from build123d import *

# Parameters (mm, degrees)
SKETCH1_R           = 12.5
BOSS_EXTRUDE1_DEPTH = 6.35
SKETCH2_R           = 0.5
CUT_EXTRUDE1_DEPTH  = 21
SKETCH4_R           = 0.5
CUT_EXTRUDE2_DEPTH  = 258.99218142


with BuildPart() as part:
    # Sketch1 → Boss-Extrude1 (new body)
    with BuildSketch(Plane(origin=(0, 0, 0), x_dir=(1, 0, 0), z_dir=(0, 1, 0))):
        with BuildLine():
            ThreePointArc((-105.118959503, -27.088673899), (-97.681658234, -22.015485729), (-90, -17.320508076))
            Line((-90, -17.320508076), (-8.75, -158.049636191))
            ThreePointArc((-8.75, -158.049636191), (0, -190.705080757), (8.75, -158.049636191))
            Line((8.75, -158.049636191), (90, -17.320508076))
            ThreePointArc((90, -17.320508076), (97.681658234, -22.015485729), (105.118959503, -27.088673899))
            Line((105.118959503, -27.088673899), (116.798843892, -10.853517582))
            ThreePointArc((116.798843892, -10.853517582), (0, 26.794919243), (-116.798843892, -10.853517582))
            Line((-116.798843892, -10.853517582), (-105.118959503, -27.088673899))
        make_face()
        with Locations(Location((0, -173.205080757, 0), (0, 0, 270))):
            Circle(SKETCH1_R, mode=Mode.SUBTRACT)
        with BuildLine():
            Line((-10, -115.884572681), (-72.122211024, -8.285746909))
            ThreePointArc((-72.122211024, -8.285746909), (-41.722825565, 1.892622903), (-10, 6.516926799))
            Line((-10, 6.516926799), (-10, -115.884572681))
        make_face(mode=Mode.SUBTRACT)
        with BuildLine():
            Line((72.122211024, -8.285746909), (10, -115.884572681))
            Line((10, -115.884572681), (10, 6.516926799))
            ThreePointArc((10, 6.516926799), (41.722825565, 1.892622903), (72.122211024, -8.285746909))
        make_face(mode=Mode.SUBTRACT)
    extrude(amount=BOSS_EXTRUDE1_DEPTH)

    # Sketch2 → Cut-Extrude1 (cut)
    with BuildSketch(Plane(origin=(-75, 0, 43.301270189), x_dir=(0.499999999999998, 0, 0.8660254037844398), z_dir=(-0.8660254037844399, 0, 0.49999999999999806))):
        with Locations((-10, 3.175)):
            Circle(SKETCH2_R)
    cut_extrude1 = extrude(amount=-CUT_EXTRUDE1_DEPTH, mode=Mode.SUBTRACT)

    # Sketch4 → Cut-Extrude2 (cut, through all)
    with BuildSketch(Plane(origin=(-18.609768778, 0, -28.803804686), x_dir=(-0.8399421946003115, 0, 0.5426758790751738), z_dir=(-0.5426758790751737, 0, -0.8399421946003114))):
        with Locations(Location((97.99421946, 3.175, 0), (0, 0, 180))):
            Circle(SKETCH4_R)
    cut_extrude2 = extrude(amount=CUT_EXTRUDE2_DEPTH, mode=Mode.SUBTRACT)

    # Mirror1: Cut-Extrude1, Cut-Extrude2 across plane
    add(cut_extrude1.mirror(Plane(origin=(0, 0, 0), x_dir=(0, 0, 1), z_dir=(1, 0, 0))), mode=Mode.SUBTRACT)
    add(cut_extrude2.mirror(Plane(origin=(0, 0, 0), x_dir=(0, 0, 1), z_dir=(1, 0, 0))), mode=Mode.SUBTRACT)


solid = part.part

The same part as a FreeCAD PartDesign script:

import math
import FreeCAD as App
import Part
import Sketcher

V = App.Vector
Q = App.Units.Quantity

doc = App.newDocument("Part")
body = doc.addObject("PartDesign::Body", "Body")

sketch1 = body.newObject("Sketcher::SketchObject", "Sketch")
sketch1.AttachmentSupport = (doc.getObject("XZ_Plane"), [""])
sketch1.MapMode = "FlatFace"
sketch1.addGeometry([
    Part.ArcOfCircle(Part.Circle(V(0, 173, 0), V(0, 0, 1), 180), math.radians(-125.73), math.radians(-120)),
    Part.LineSegment(V(-90, 17, 0), V(-9, 158, 0)),
    Part.ArcOfCircle(Part.Circle(V(0, 173, 0), V(0, 0, 1), 18), math.radians(-60), math.radians(240)),
    Part.LineSegment(V(9, 158, 0), V(90, 17, 0)),
    Part.ArcOfCircle(Part.Circle(V(0, 173, 0), V(0, 0, 1), 180), math.radians(-60), math.radians(-54.27)),
    Part.LineSegment(V(105, 27, 0), V(117, 11, 0)),
    Part.ArcOfCircle(Part.Circle(V(0, 173, 0), V(0, 0, 1), 200), math.radians(-126), math.radians(-54)),
    Part.LineSegment(V(-117, 11, 0), V(-105, 27, 0)),
    Part.Circle(V(0, 173, 0), V(0, 0, 1), 12),
    Part.LineSegment(V(-10, -7, 0), V(-10, 116, 0)),
    Part.LineSegment(V(-10, 116, 0), V(-72, 8, 0)),
    Part.ArcOfCircle(Part.Circle(V(0, 173, 0), V(0, 0, 1), 180), math.radians(-114), math.radians(-93)),
    Part.ArcOfCircle(Part.Circle(V(0, 173, 0), V(0, 0, 1), 180), math.radians(-87), math.radians(-66)),
    Part.LineSegment(V(72, 8, 0), V(10, 116, 0)),
    Part.LineSegment(V(10, 116, 0), V(10, -7, 0)),
], False)
sketch1.addConstraint([
    Sketcher.Constraint("Coincident", 0, 2, 1, 1),
    Sketcher.Constraint("Coincident", 1, 2, 2, 2),
    Sketcher.Constraint("Coincident", 2, 1, 3, 1),
    Sketcher.Constraint("Coincident", 3, 2, 4, 1),
    Sketcher.Constraint("Coincident", 4, 2, 5, 1),
    Sketcher.Constraint("Coincident", 5, 2, 6, 2),
    Sketcher.Constraint("Coincident", 6, 1, 7, 1),
    Sketcher.Constraint("Coincident", 7, 2, 0, 1),
    Sketcher.Constraint("Coincident", 9, 2, 10, 1),
    Sketcher.Constraint("Coincident", 10, 2, 11, 1),
    Sketcher.Constraint("Coincident", 11, 2, 9, 1),
    Sketcher.Constraint("Coincident", 12, 2, 13, 1),
    Sketcher.Constraint("Coincident", 13, 2, 14, 1),
    Sketcher.Constraint("Coincident", 14, 2, 12, 1),
    Sketcher.Constraint("Vertical", 9),
    Sketcher.Constraint("Vertical", 14),
    Sketcher.Constraint("Coincident", 2, 3, 0, 3),
    Sketcher.Constraint("Coincident", 4, 3, 0, 3),
    Sketcher.Constraint("Coincident", 6, 3, 0, 3),
    Sketcher.Constraint("Coincident", 8, 3, 0, 3),
    Sketcher.Constraint("Coincident", 11, 3, 0, 3),
    Sketcher.Constraint("Coincident", 12, 3, 0, 3),
    Sketcher.Constraint("Equal", 0, 4),
    Sketcher.Constraint("Equal", 4, 11),
    Sketcher.Constraint("Equal", 11, 12),
    Sketcher.Constraint("Symmetric", 1, 2, 2, 1, -2),
    Sketcher.Constraint("Symmetric", 9, 2, 13, 2, -2),
    Sketcher.Constraint("Parallel", 1, 10),
    Sketcher.Constraint("Parallel", 3, 13),
    Sketcher.Constraint("Horizontal", 0, 2, 3, 2),
    Sketcher.Constraint("Horizontal", 5, 2, 6, 1),
    Sketcher.Constraint("Horizontal", 4, 2, 7, 2),
    Sketcher.Constraint("Diameter", 8, 25.0),
    Sketcher.Constraint("Radius", 0, 180.0),
    Sketcher.Constraint("Radius", 6, 200.0),
    Sketcher.Constraint("Radius", 2, 17.5),
    Sketcher.Constraint("Angle", 1, Q("60 deg")),
    Sketcher.Constraint("DistanceX", 0, 2, -1, 1, 90.0),
    Sketcher.Constraint("DistanceX", 9, 2, -1, 1, 10.0),
    Sketcher.Constraint("DistanceY", 9, 1, 9, 2, 122.401499),
    Sketcher.Constraint("DistanceY", 11, 2, 7, 2, 33.605601),
    Sketcher.Constraint("DistanceY", -1, 1, 0, 3, 173.205081),
    Sketcher.Constraint("DistanceY", 5, 2, 3, 2, 6.46699),
])
pad1 = body.newObject("PartDesign::Pad", "Pad")
pad1.Profile = sketch1
pad1.Length = 6.35
pad1.Reversed = True

sketch2 = body.newObject("Sketcher::SketchObject", "Sketch001")
sketch2.Placement = App.Placement(V(-75, 0, 43.30127), App.Rotation(V(0.5, 0, 0.866025404), V(0, 1, 0), V(-0.866025404, 0, 0.5), "ZXY"))
sketch2.addGeometry(Part.Circle(V(-10, 3.2, 0), V(0, 0, 1), 0.5), False)
sketch2.addConstraint([
    Sketcher.Constraint("Diameter", 0, 1.0),
    Sketcher.Constraint("DistanceX", 0, 3, -1, 1, 10.0),
    Sketcher.Constraint("DistanceY", -1, 1, 0, 3, 3.175),
])
pocket1 = body.newObject("PartDesign::Pocket", "Pocket")
pocket1.Profile = sketch2
pocket1.Length = 21

sketch3 = body.newObject("Sketcher::SketchObject", "Sketch002")
sketch3.Placement = App.Placement(V(-18.609769, 0, -28.803805), App.Rotation(V(-0.839942195, 0, 0.542675879), V(0, 1.000000001, 0), V(-0.542675879, 0, -0.839942195), "ZXY"))
sketch3.addGeometry(Part.Circle(V(98, 3.2, 0), V(0, 0, 1), 0.5), False)
sketch3.addConstraint([
    Sketcher.Constraint("Diameter", 0, 1.0),
    Sketcher.Constraint("DistanceY", -1, 1, 0, 3, 3.175),
    Sketcher.Constraint("DistanceX", -1, 1, 0, 3, 97.99422),
])
pocket2 = body.newObject("PartDesign::Pocket", "Pocket001")
pocket2.Profile = sketch3
pocket2.Type = "ThroughAll"
pocket2.Reversed = True
doc.recompute()

mirrored = body.newObject("PartDesign::Mirrored", "Mirrored")
mirrored.Originals = [pocket1, pocket2]
mirrored.MirrorPlane = (doc.getObject("YZ_Plane"), [""])
body.Tip = mirrored

doc.recompute()
